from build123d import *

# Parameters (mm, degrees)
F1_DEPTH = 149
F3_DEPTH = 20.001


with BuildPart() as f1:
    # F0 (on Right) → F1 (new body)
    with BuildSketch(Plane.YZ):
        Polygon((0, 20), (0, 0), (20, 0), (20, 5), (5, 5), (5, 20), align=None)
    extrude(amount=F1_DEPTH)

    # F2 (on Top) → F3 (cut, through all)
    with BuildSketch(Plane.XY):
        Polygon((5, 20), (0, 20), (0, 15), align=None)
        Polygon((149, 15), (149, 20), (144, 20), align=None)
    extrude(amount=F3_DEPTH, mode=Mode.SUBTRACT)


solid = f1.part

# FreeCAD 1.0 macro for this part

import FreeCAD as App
import Part
import Sketcher

V = App.Vector

doc = App.newDocument("Part")
body = doc.addObject("PartDesign::Body", "Body")

sketch1 = body.newObject("Sketcher::SketchObject", "Sketch")
sketch1.AttachmentSupport = (doc.getObject("YZ_Plane"), [""])
sketch1.MapMode = "FlatFace"
sketch1.addGeometry([
    Part.LineSegment(V(0, 20, 0), V(0, 0, 0)),
    Part.LineSegment(V(0, 0, 0), V(20, 0, 0)),
    Part.LineSegment(V(20, 0, 0), V(20, 5, 0)),
    Part.LineSegment(V(20, 5, 0), V(5, 5, 0)),
    Part.LineSegment(V(5, 5, 0), V(5, 20, 0)),
    Part.LineSegment(V(5, 20, 0), V(0, 20, 0)),
], False)
sketch1.addConstraint([
    Sketcher.Constraint("Coincident", 0, 2, 1, 1),
    Sketcher.Constraint("Coincident", 1, 2, 2, 1),
    Sketcher.Constraint("Coincident", 2, 2, 3, 1),
    Sketcher.Constraint("Coincident", 3, 2, 4, 1),
    Sketcher.Constraint("Coincident", 4, 2, 5, 1),
    Sketcher.Constraint("Coincident", 5, 2, 0, 1),
    Sketcher.Constraint("Vertical", 0),
    Sketcher.Constraint("Horizontal", 1),
    Sketcher.Constraint("Vertical", 2),
    Sketcher.Constraint("Horizontal", 3),
    Sketcher.Constraint("Vertical", 4),
    Sketcher.Constraint("Horizontal", 5),
    Sketcher.Constraint("Coincident", 0, 2, -1, 1),
    Sketcher.Constraint("Equal", 1, 0),
    Sketcher.Constraint("Equal", 5, 2),
    Sketcher.Constraint("DistanceX", 1, 1, 1, 2, 20.0),
    Sketcher.Constraint("DistanceX", 3, 2, 3, 1, 15.0),
])
pad1 = body.newObject("PartDesign::Pad", "Pad")
pad1.Profile = sketch1
pad1.Length = 149

sketch2 = body.newObject("Sketcher::SketchObject", "Sketch001")
sketch2.AttachmentSupport = (doc.getObject("XY_Plane"), [""])
sketch2.MapMode = "FlatFace"
sketch2.addGeometry([
    Part.LineSegment(V(5, 20, 0), V(0, 20, 0)),
    Part.LineSegment(V(0, 20, 0), V(0, 15, 0)),
    Part.LineSegment(V(0, 15, 0), V(5, 20, 0)),
    Part.LineSegment(V(149, 15, 0), V(149, 20, 0)),
    Part.LineSegment(V(149, 20, 0), V(144, 20, 0)),
    Part.LineSegment(V(144, 20, 0), V(149, 15, 0)),
], False)
sketch2.addConstraint([
    Sketcher.Constraint("Coincident", 0, 2, 1, 1),
    Sketcher.Constraint("Coincident", 1, 2, 2, 1),
    Sketcher.Constraint("Coincident", 2, 2, 0, 1),
    Sketcher.Constraint("Coincident", 3, 2, 4, 1),
    Sketcher.Constraint("Coincident", 4, 2, 5, 1),
    Sketcher.Constraint("Coincident", 5, 2, 3, 1),
    Sketcher.Constraint("Horizontal", 0),
    Sketcher.Constraint("Vertical", 1),
    Sketcher.Constraint("Vertical", 3),
    Sketcher.Constraint("Horizontal", 4),
    Sketcher.Constraint("PointOnObject", 0, 2, -2),
    Sketcher.Constraint("Perpendicular", 2, 5),
    Sketcher.Constraint("Horizontal", 2, 2, 3, 2),
    Sketcher.Constraint("Horizontal", 1, 2, 5, 2),
    Sketcher.Constraint("Equal", 0, 4),
    Sketcher.Constraint("DistanceX", 0, 2, 0, 1, 5.0),
    Sketcher.Constraint("DistanceY", -1, 1, 0, 2, 20.0),
    Sketcher.Constraint("DistanceX", -1, 1, 3, 2, 149.0),
])
pocket1 = body.newObject("PartDesign::Pocket", "Pocket")
pocket1.Profile = sketch2
pocket1.Type = "ThroughAll"
pocket1.Reversed = True

doc.recompute()
